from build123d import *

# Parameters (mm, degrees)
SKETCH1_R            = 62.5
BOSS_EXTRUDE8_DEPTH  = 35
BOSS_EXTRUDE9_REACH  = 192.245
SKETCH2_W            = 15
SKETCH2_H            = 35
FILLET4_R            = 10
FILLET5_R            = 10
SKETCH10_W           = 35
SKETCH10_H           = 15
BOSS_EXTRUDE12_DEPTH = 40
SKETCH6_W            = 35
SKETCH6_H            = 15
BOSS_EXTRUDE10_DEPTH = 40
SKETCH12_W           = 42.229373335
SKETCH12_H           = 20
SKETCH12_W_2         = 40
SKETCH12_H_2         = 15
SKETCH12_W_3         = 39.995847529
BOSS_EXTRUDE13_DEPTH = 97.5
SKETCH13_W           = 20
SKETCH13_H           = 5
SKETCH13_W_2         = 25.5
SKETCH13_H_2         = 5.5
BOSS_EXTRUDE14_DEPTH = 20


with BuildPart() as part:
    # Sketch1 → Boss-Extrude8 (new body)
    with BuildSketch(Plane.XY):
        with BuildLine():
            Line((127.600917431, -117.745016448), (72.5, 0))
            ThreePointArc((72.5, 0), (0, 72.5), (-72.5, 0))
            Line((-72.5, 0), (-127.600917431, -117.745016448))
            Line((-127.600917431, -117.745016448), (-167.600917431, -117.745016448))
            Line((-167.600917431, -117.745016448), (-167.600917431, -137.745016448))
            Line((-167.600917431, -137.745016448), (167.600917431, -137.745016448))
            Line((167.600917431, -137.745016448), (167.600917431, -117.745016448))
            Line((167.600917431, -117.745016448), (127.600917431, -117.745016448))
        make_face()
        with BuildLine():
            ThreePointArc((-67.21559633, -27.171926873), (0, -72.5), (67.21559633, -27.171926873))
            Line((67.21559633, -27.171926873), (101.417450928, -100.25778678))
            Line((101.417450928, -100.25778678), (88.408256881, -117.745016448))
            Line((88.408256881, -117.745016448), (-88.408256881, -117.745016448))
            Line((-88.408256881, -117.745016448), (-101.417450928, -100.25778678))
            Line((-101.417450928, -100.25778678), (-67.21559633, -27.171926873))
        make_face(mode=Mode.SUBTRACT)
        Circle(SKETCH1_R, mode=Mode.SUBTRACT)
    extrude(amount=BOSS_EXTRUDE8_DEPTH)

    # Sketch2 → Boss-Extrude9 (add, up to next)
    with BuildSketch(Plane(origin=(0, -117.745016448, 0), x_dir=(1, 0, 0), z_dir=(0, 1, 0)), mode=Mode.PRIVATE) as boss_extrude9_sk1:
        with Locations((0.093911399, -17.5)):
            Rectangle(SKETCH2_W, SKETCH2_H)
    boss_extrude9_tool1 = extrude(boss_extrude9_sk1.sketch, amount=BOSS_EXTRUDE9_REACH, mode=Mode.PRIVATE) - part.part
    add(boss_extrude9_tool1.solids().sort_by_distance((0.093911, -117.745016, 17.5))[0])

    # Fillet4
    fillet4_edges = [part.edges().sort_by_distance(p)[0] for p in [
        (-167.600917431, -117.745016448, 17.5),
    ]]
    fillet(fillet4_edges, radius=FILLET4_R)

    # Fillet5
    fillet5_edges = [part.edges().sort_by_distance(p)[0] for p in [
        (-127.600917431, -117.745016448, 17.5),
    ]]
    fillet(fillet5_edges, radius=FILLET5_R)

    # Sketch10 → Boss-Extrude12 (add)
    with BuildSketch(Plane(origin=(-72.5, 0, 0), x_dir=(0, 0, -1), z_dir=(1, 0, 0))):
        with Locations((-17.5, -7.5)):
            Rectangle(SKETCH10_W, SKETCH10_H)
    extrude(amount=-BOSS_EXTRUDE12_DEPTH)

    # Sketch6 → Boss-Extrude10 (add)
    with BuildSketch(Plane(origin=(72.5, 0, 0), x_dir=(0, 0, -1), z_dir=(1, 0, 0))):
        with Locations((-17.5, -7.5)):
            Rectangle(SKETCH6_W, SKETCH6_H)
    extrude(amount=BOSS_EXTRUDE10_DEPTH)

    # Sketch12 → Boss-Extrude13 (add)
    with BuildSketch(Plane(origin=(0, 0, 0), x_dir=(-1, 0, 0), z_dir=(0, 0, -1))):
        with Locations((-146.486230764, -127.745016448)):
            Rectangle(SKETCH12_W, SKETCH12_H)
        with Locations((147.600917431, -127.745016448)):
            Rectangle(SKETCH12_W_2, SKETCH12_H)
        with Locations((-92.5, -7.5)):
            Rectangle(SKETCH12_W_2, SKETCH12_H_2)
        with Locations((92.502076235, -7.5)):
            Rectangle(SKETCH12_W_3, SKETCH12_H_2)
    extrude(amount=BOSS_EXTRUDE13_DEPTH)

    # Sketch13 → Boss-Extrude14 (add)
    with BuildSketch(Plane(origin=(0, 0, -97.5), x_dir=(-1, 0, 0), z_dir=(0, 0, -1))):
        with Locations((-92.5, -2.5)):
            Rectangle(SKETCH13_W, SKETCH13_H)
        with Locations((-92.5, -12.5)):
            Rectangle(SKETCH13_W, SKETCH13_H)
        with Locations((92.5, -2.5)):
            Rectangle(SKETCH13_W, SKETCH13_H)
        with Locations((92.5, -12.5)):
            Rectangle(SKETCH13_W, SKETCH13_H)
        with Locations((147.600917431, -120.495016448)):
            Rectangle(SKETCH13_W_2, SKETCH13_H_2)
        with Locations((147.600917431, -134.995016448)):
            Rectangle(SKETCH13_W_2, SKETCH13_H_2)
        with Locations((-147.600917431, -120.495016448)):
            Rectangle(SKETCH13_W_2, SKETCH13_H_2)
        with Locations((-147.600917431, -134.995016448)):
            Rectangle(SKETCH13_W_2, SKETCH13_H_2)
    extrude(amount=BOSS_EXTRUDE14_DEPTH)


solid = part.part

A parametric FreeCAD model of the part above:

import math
import FreeCAD as App
import Part
import Sketcher
Q = App.Units.Quantity


def edges_at(feature, points):
    """Names of the edges that pass closest to the given points."""
    edges = feature.Shape.Edges
    near = lambda p: min(range(len(edges)), key=lambda i: edges[i].distToShape(Part.Vertex(*p))[0])
    return sorted({f"Edge{near(p) + 1}" for p in points})


def add_polygon(sketch, points):
    """Adds a closed chain of lines whose ends are joined by coincident constraints."""
    first, n = sketch.GeometryCount, len(points)
    for a, b in zip(points, points[1:] + points[:1]):
        sketch.addGeometry(Part.LineSegment(App.Vector(*a, 0), App.Vector(*b, 0)), False)
    for i in range(n):
        sketch.addConstraint(Sketcher.Constraint("Coincident", first + i, 2, first + (i + 1) % n, 1))

doc = App.newDocument("Part")
body = doc.addObject("PartDesign::Body", "Body")

# Sketch on XY plane
sketch1 = body.newObject("Sketcher::SketchObject", "Sketch")
sketch1.AttachmentSupport = (doc.getObject("XY_Plane"), [""])
sketch1.MapMode = "FlatFace"
sketch1.addGeometry([
    Part.LineSegment(App.Vector(127.600917, -117.745016, 0), App.Vector(72.5, 0, 0)),  # 0
    Part.ArcOfCircle(Part.Circle(App.Vector(0, 0, 0), App.Vector(0, 0, 1), 72.5), math.radians(0), math.radians(180)),  # 1
    Part.LineSegment(App.Vector(-72.5, 0, 0), App.Vector(-127.600917, -117.745016, 0)),  # 2
    Part.LineSegment(App.Vector(-127.600917, -117.745016, 0), App.Vector(-167.600917, -117.745016, 0)),  # 3
    Part.LineSegment(App.Vector(-167.600917, -117.745016, 0), App.Vector(-167.600917, -137.745016, 0)),  # 4
    Part.LineSegment(App.Vector(-167.600917, -137.745016, 0), App.Vector(167.600917, -137.745016, 0)),  # 5
    Part.LineSegment(App.Vector(167.600917, -137.745016, 0), App.Vector(167.600917, -117.745016, 0)),  # 6
    Part.LineSegment(App.Vector(167.600917, -117.745016, 0), App.Vector(127.600917, -117.745016, 0)),  # 7
    Part.LineSegment(App.Vector(-101.417451, -100.257787, 0), App.Vector(-67.215596, -27.171927, 0)),  # 8
    Part.ArcOfCircle(Part.Circle(App.Vector(0, 0, 0), App.Vector(0, 0, 1), 72.5), math.radians(-157.988963), math.radians(-22.011037)),  # 9
    Part.LineSegment(App.Vector(67.215596, -27.171927, 0), App.Vector(101.417451, -100.257787, 0)),  # 10
    Part.LineSegment(App.Vector(101.417451, -100.257787, 0), App.Vector(88.408257, -117.745016, 0)),  # 11
    Part.LineSegment(App.Vector(88.408257, -117.745016, 0), App.Vector(-88.408257, -117.745016, 0)),  # 12
    Part.LineSegment(App.Vector(-88.408257, -117.745016, 0), App.Vector(-101.417451, -100.257787, 0)),  # 13
    Part.Circle(App.Vector(0, 0, 0), App.Vector(0, 0, 1), 62.5),  # 14
], False)
sketch1.addConstraint([
    Sketcher.Constraint("Coincident", 0, 2, 1, 1),
    Sketcher.Constraint("Coincident", 1, 2, 2, 1),
    Sketcher.Constraint("Coincident", 2, 2, 3, 1),
    Sketcher.Constraint("Coincident", 3, 2, 4, 1),
    Sketcher.Constraint("Coincident", 4, 2, 5, 1),
    Sketcher.Constraint("Coincident", 5, 2, 6, 1),
    Sketcher.Constraint("Coincident", 6, 2, 7, 1),
    Sketcher.Constraint("Coincident", 7, 2, 0, 1),
    Sketcher.Constraint("Coincident", 8, 2, 9, 1),
    Sketcher.Constraint("Coincident", 9, 2, 10, 1),
    Sketcher.Constraint("Coincident", 10, 2, 11, 1),
    Sketcher.Constraint("Coincident", 11, 2, 12, 1),
    Sketcher.Constraint("Coincident", 12, 2, 13, 1),
    Sketcher.Constraint("Coincident", 13, 2, 8, 1),
    Sketcher.Constraint("Horizontal", 3),
    Sketcher.Constraint("Vertical", 4),
    Sketcher.Constraint("Horizontal", 5),
    Sketcher.Constraint("Vertical", 6),
    Sketcher.Constraint("Horizontal", 7),
    Sketcher.Constraint("Horizontal", 12),
    Sketcher.Constraint("Coincident", 1, 3, -1, 1),
    Sketcher.Constraint("Coincident", 9, 3, -1, 1),
    Sketcher.Constraint("Coincident", 14, 3, -1, 1),
    Sketcher.Constraint("Equal", 1, 9),
    Sketcher.Constraint("Symmetric", 3, 2, 6, 2, -2),
    Sketcher.Constraint("Symmetric", 10, 2, 13, 2, -2),
    Sketcher.Constraint("PointOnObject", 0, 2, -1),
    Sketcher.Constraint("PointOnObject", 1, 2, -1),
    Sketcher.Constraint("Parallel", 2, 8),
    Sketcher.Constraint("Parallel", 0, 10),
    Sketcher.Constraint("Horizontal", 8, 2, 9, 2),
    Sketcher.Constraint("Horizontal", 7, 2, 11, 2),
    Sketcher.Constraint("Equal", 11, 13),
    Sketcher.Constraint("Diameter", 14, Q("125 mm")),
    Sketcher.Constraint("Radius", 1, Q("72.5 mm")),
    Sketcher.Constraint("DistanceX", 3, 2, 3, 1, Q("40 mm")),
    Sketcher.Constraint("DistanceY", 4, 2, 4, 1, Q("20 mm")),
    Sketcher.Constraint("Distance", 0, Q("130 mm")),
    Sketcher.Constraint("DistanceX", 5, 1, 5, 2, Q("335.201835 mm")),
    Sketcher.Constraint("DistanceX", 12, 2, 12, 1, Q("176.816514 mm")),
    Sketcher.Constraint("DistanceX", -1, 1, 10, 2, Q("101.417451 mm")),
    Sketcher.Constraint("DistanceX", 2, 2, 8, 2, Q("60.385321 mm")),
])
pad1 = body.newObject("PartDesign::Pad", "Pad")
pad1.Profile = sketch1
pad1.Length = 35

# Sketch on XZ plane
sketch2 = body.newObject("Sketcher::SketchObject", "Sketch001")
sketch2.AttachmentSupport = (doc.getObject("XZ_Plane"), [""])
sketch2.MapMode = "FlatFace"
sketch2.AttachmentOffset = App.Placement(App.Vector(0, 0, 117.745016), App.Rotation())
add_polygon(sketch2, [(-7.406089, 0), (-7.406089, 35), (7.593911, 35), (7.593911, 0)])  # lines 0-3
sketch2.addConstraint([
    Sketcher.Constraint("Vertical", 0),
    Sketcher.Constraint("Horizontal", 1),
    Sketcher.Constraint("Vertical", 2),
    Sketcher.Constraint("Horizontal", 3),
    Sketcher.Constraint("PointOnObject", 2, 2, -1),
    Sketcher.Constraint("DistanceX", 1, 1, 1, 2, Q("15 mm")),
    Sketcher.Constraint("DistanceY", 0, 1, 0, 2, Q("35 mm")),
    Sketcher.Constraint("DistanceX", 0, 2, -1, 1, Q("7.406089 mm")),
])
pad2 = body.newObject("PartDesign::Pad", "Pad001")
pad2.Profile = sketch2
pad2.Type = "UpToFirst"
pad2.Reversed = True
doc.recompute()

fillet = body.newObject("PartDesign::Fillet", "Fillet")
fillet.Base = (pad2, edges_at(pad2, [(-167.601, -117.745, 17.5)]))
fillet.Radius = 10
doc.recompute()

fillet2 = body.newObject("PartDesign::Fillet", "Fillet001")
fillet2.Base = (fillet, edges_at(fillet, [(-127.601, -117.745, 17.5)]))
fillet2.Radius = 10

# Sketch on YZ plane
sketch3 = body.newObject("Sketcher::SketchObject", "Sketch002")
sketch3.AttachmentSupport = (doc.getObject("YZ_Plane"), [""])
sketch3.MapMode = "FlatFace"
sketch3.AttachmentOffset = App.Placement(App.Vector(0, 0, -72.5), App.Rotation())
add_polygon(sketch3, [(0, 35), (-15, 35), (-15, 0), (0, 0)])  # lines 0-3
sketch3.addConstraint([
    Sketcher.Constraint("Horizontal", 0),
    Sketcher.Constraint("Vertical", 1),
    Sketcher.Constraint("Horizontal", 2),
    Sketcher.Constraint("Vertical", 3),
    Sketcher.Constraint("Coincident", 2, 2, -1, 1),
    Sketcher.Constraint("DistanceX", 0, 2, 0, 1, Q("15 mm")),
    Sketcher.Constraint("DistanceY", 1, 2, 1, 1, Q("35 mm")),
])
pad3 = body.newObject("PartDesign::Pad", "Pad002")
pad3.Profile = sketch3
pad3.Length = 40
pad3.Reversed = True

# Sketch on YZ plane
sketch4 = body.newObject("Sketcher::SketchObject", "Sketch003")
sketch4.AttachmentSupport = (doc.getObject("YZ_Plane"), [""])
sketch4.MapMode = "FlatFace"
sketch4.AttachmentOffset = App.Placement(App.Vector(0, 0, 72.5), App.Rotation())
add_polygon(sketch4, [(0, 35), (-15, 35), (-15, 0), (0, 0)])  # lines 0-3
sketch4.addConstraint([
    Sketcher.Constraint("Horizontal", 0),
    Sketcher.Constraint("Vertical", 1),
    Sketcher.Constraint("Horizontal", 2),
    Sketcher.Constraint("Vertical", 3),
    Sketcher.Constraint("Coincident", 2, 2, -1, 1),
    Sketcher.Constraint("DistanceX", 0, 2, 0, 1, Q("15 mm")),
    Sketcher.Constraint("DistanceY", 1, 2, 1, 1, Q("35 mm")),
])
pad4 = body.newObject("PartDesign::Pad", "Pad003")
pad4.Profile = sketch4
pad4.Length = 40

# Sketch on XY plane
sketch5 = body.newObject("Sketcher::SketchObject", "Sketch004")
sketch5.AttachmentSupport = (doc.getObject("XY_Plane"), [""])
sketch5.MapMode = "FlatFace"
add_polygon(sketch5, [(167.600917, -117.745016), (167.600917, -137.745016), (125.371544, -137.745016), (125.371544, -117.745016)])  # lines 0-3
add_polygon(sketch5, [(-127.600917, -117.745016), (-127.600917, -137.745016), (-167.600917, -137.745016), (-167.600917, -117.745016)])  # lines 4-7
add_polygon(sketch5, [(112.5, 0), (112.5, -15), (72.5, -15), (72.5, 0)])  # lines 8-11
add_polygon(sketch5, [(-72.504152, 0), (-72.504152, -15), (-112.5, -15), (-112.5, 0)])  # lines 12-15
sketch5.addConstraint([
    Sketcher.Constraint("Vertical", 0),
    Sketcher.Constraint("Horizontal", 1),
    Sketcher.Constraint("Vertical", 2),
    Sketcher.Constraint("Horizontal", 3),
    Sketcher.Constraint("Vertical", 4),
    Sketcher.Constraint("Horizontal", 5),
    Sketcher.Constraint("Vertical", 6),
    Sketcher.Constraint("Horizontal", 7),
    Sketcher.Constraint("Vertical", 8),
    Sketcher.Constraint("Horizontal", 9),
    Sketcher.Constraint("Vertical", 10),
    Sketcher.Constraint("Horizontal", 11),
    Sketcher.Constraint("Vertical", 12),
    Sketcher.Constraint("Horizontal", 13),
    Sketcher.Constraint("Vertical", 14),
    Sketcher.Constraint("Horizontal", 15),
    Sketcher.Constraint("Symmetric", 11, 2, 14, 2, -1, 1),
    Sketcher.Constraint("Symmetric", 0, 2, 5, 2, -2),
    Sketcher.Constraint("PointOnObject", 10, 2, -1),
    Sketcher.Constraint("Horizontal", 3, 2, 6, 2),
    Sketcher.Constraint("Horizontal", 9, 2, 12, 2),
    Sketcher.Constraint("Equal", 7, 9),
    Sketcher.Constraint("DistanceX", 5, 2, 5, 1, Q("40 mm")),
    Sketcher.Constraint("DistanceY", 0, 2, 0, 1, Q("20 mm")),
    Sketcher.Constraint("DistanceY", 8, 2, 8, 1, Q("15 mm")),
    Sketcher.Constraint("DistanceX", -1, 1, 8, 2, Q("112.5 mm")),
    Sketcher.Constraint("DistanceX", 1, 2, 1, 1, Q("42.229373 mm")),
    Sketcher.Constraint("DistanceX", 13, 2, 13, 1, Q("39.995848 mm")),
    Sketcher.Constraint("DistanceX", 4, 2, 1, 2, Q("252.972462 mm")),
    Sketcher.Constraint("DistanceY", 0, 2, -1, 1, Q("137.745016 mm")),
])
pad5 = body.newObject("PartDesign::Pad", "Pad004")
pad5.Profile = sketch5
pad5.Length = 97.5
pad5.Reversed = True

# Sketch on XY plane
sketch6 = body.newObject("Sketcher::SketchObject", "Sketch005")
sketch6.AttachmentSupport = (doc.getObject("XY_Plane"), [""])
sketch6.MapMode = "FlatFace"
sketch6.AttachmentOffset = App.Placement(App.Vector(0, 0, -97.5), App.Rotation())
add_polygon(sketch6, [(102.5, 0), (102.5, -5), (82.5, -5), (82.5, 0)])  # lines 0-3
add_polygon(sketch6, [(102.5, -10), (102.5, -15), (82.5, -15), (82.5, -10)])  # lines 4-7
add_polygon(sketch6, [(-82.5, 0), (-82.5, -5), (-102.5, -5), (-102.5, 0)])  # lines 8-11
add_polygon(sketch6, [(-82.5, -10), (-82.5, -15), (-102.5, -15), (-102.5, -10)])  # lines 12-15
add_polygon(sketch6, [(-134.850917, -117.745016), (-134.850917, -123.245016), (-160.350917, -123.245016), (-160.350917, -117.745016)])  # lines 16-19
add_polygon(sketch6, [(-134.850917, -132.245016), (-134.850917, -137.745016), (-160.350917, -137.745016), (-160.350917, -132.245016)])  # lines 20-23
add_polygon(sketch6, [(160.350917, -117.745016), (160.350917, -123.245016), (134.850917, -123.245016), (134.850917, -117.745016)])  # lines 24-27
add_polygon(sketch6, [(160.350917, -132.245016), (160.350917, -137.745016), (134.850917, -137.745016), (134.850917, -132.245016)])  # lines 28-31
sketch6.addConstraint([
    Sketcher.Constraint("Vertical", 0),
    Sketcher.Constraint("Horizontal", 1),
    Sketcher.Constraint("Vertical", 2),
    Sketcher.Constraint("Horizontal", 3),
    Sketcher.Constraint("Vertical", 4),
    Sketcher.Constraint("Horizontal", 5),
    Sketcher.Constraint("Vertical", 6),
    Sketcher.Constraint("Horizontal", 7),
    Sketcher.Constraint("Vertical", 8),
    Sketcher.Constraint("Horizontal", 9),
    Sketcher.Constraint("Vertical", 10),
    Sketcher.Constraint("Horizontal", 11),
    Sketcher.Constraint("Vertical", 12),
    Sketcher.Constraint("Horizontal", 13),
    Sketcher.Constraint("Vertical", 14),
    Sketcher.Constraint("Horizontal", 15),
    Sketcher.Constraint("Vertical", 16),
    Sketcher.Constraint("Horizontal", 17),
    Sketcher.Constraint("Vertical", 18),
    Sketcher.Constraint("Horizontal", 19),
    Sketcher.Constraint("Vertical", 20),
    Sketcher.Constraint("Horizontal", 21),
    Sketcher.Constraint("Vertical", 22),
    Sketcher.Constraint("Horizontal", 23),
    Sketcher.Constraint("Vertical", 24),
    Sketcher.Constraint("Horizontal", 25),
    Sketcher.Constraint("Vertical", 26),
    Sketcher.Constraint("Horizontal", 27),
    Sketcher.Constraint("Vertical", 28),
    Sketcher.Constraint("Horizontal", 29),
    Sketcher.Constraint("Vertical", 30),
    Sketcher.Constraint("Horizontal", 31),
    Sketcher.Constraint("Symmetric", 3, 2, 10, 2, -1, 1),
    Sketcher.Constraint("Symmetric", 1, 2, 8, 2, -2),
    Sketcher.Constraint("Symmetric", 5, 2, 12, 2, -2),
    Sketcher.Constraint("Symmetric", 7, 2, 14, 2, -2),
    Sketcher.Constraint("Symmetric", 17, 2, 24, 2, -2),
    Sketcher.Constraint("Symmetric", 19, 2, 26, 2, -2),
    Sketcher.Constraint("Symmetric", 21, 2, 28, 2, -2),
    Sketcher.Constraint("Symmetric", 23, 2, 30, 2, -2),
    Sketcher.Constraint("PointOnObject", 2, 2, -1),
    Sketcher.Constraint("Vertical", 3, 2, 4, 2),
    Sketcher.Constraint("Vertical", 2, 2, 5, 2),
    Sketcher.Constraint("Vertical", 19, 2, 20, 2),
    Sketcher.Constraint("Vertical", 18, 2, 21, 2),
    Sketcher.Constraint("Equal", 2, 4),
    Sketcher.Constraint("Equal", 18, 20),
    Sketcher.Constraint("DistanceX", 1, 2, 1, 1, Q("20 mm")),
    Sketcher.Constraint("DistanceY", 0, 2, 0, 1, Q("5 mm")),
    Sketcher.Constraint("DistanceX", 17, 2, 17, 1, Q("25.5 mm")),
    Sketcher.Constraint("DistanceY", 16, 2, 16, 1, Q("5.5 mm")),
    Sketcher.Constraint("DistanceY", 4, 2, -1, 1, Q("15 mm")),
    Sketcher.Constraint("DistanceX", 8, 2, 1, 2, Q("165 mm")),
    Sketcher.Constraint("DistanceY", 20, 2, 19, 2, Q("20 mm")),
    Sketcher.Constraint("DistanceX", 16, 2, -1, 1, Q("134.850917 mm")),
    Sketcher.Constraint("DistanceY", 16, 2, -1, 1, Q("123.245016 mm")),
])
pad6 = body.newObject("PartDesign::Pad", "Pad005")
pad6.Profile = sketch6
pad6.Length = 20
pad6.Reversed = True

doc.recompute()
